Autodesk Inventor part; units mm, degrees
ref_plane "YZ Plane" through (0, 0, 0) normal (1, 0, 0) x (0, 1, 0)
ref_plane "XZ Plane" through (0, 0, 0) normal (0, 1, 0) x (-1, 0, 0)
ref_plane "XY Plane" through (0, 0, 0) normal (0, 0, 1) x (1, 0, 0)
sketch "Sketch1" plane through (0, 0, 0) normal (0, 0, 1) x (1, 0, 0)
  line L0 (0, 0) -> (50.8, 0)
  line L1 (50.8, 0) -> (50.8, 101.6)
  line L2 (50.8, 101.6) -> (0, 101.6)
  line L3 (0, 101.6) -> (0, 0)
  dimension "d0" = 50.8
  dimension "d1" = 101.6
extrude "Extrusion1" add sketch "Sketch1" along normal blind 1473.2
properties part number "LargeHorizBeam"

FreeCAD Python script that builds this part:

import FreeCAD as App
import Part
import Sketcher
from FreeCAD import Vector
Q = App.Units.Quantity


def add_polygon(sketch, points):
    """Adds a closed chain of lines whose ends are joined by coincident constraints."""
    first, n = sketch.GeometryCount, len(points)
    for a, b in zip(points, points[1:] + points[:1]):
        sketch.addGeometry(Part.LineSegment(App.Vector(*a, 0), App.Vector(*b, 0)), False)
    for i in range(n):
        sketch.addConstraint(Sketcher.Constraint("Coincident", first + i, 2, first + (i + 1) % n, 1))

doc = App.newDocument("Part")
body = doc.addObject("PartDesign::Body", "Body")

# Sketch on XY plane
sketch1 = body.newObject("Sketcher::SketchObject", "Sketch")
sketch1.AttachmentSupport = (doc.getObject("XY_Plane"), [""])
sketch1.MapMode = "FlatFace"
add_polygon(sketch1, [(0, 101.6), (0, 0), (50.8, 0), (50.8, 101.6)])  # lines 0-3
sketch1.addConstraint([
    Sketcher.Constraint("Vertical", 0),
    Sketcher.Constraint("Horizontal", 1),
    Sketcher.Constraint("Vertical", 2),
    Sketcher.Constraint("Horizontal", 3),
    Sketcher.Constraint("Coincident", 0, 2, -1, 1),
    Sketcher.Constraint("DistanceX", 1, 1, 1, 2, Q("2 in")),
    Sketcher.Constraint("DistanceY", 0, 2, 0, 1, Q("4 in")),
])
pad1 = body.newObject("PartDesign::Pad", "Pad")
pad1.Profile = sketch1
pad1.Length = Q("58 in")

doc.recompute()
